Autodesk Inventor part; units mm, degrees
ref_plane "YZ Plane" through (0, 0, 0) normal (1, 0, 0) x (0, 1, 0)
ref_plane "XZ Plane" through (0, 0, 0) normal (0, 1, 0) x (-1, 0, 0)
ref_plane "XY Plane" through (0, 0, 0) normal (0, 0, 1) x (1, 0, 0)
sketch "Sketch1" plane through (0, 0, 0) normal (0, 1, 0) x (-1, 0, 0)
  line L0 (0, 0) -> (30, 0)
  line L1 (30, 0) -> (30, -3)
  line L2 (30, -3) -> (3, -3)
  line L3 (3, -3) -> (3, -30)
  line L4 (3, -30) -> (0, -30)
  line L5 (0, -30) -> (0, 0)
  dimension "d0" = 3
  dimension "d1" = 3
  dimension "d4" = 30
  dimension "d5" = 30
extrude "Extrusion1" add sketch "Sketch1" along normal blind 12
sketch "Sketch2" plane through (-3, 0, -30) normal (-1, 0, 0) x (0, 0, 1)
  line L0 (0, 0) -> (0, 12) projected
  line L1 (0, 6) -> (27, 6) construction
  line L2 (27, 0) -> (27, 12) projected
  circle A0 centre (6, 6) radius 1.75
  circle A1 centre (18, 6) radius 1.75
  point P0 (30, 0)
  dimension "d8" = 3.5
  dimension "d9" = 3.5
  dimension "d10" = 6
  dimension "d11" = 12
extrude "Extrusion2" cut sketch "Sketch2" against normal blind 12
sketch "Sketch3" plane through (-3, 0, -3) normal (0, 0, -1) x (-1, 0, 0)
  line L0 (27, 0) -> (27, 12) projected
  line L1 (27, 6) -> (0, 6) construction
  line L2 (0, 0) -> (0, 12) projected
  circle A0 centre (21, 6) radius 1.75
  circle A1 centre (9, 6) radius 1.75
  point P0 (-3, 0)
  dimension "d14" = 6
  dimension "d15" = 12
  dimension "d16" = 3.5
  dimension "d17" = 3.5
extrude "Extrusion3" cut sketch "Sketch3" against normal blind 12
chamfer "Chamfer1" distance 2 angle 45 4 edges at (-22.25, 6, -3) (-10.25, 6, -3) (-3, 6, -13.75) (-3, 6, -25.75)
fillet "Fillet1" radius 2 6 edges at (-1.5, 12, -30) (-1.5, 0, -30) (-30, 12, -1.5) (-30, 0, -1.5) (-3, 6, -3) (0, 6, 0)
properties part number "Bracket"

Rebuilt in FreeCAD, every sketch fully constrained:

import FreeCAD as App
import Part
import Sketcher
Q = App.Units.Quantity


def edges_at(feature, points):
    """Names of the edges that pass closest to the given points."""
    edges = feature.Shape.Edges
    near = lambda p: min(range(len(edges)), key=lambda i: edges[i].distToShape(Part.Vertex(*p))[0])
    return sorted({f"Edge{near(p) + 1}" for p in points})

doc = App.newDocument("Part")
body = doc.addObject("PartDesign::Body", "Body")

sketch1 = body.newObject("Sketcher::SketchObject", "Sketch")
sketch1.AttachmentSupport = (doc.getObject("XZ_Plane"), [""])
sketch1.MapMode = "FlatFace"
sketch1.addGeometry([
    Part.LineSegment(App.Vector(-30, 0, 0), App.Vector(0, 0, 0)),
    Part.LineSegment(App.Vector(0, 0, 0), App.Vector(0, -30, 0)),
    Part.LineSegment(App.Vector(0, -30, 0), App.Vector(-3, -30, 0)),
    Part.LineSegment(App.Vector(-3, -30, 0), App.Vector(-3, -3, 0)),
    Part.LineSegment(App.Vector(-3, -3, 0), App.Vector(-30, -3, 0)),
    Part.LineSegment(App.Vector(-30, -3, 0), App.Vector(-30, 0, 0)),
], False)
sketch1.addConstraint([
    Sketcher.Constraint("Coincident", 0, 2, 1, 1),
    Sketcher.Constraint("Coincident", 1, 2, 2, 1),
    Sketcher.Constraint("Coincident", 2, 2, 3, 1),
    Sketcher.Constraint("Coincident", 3, 2, 4, 1),
    Sketcher.Constraint("Coincident", 4, 2, 5, 1),
    Sketcher.Constraint("Coincident", 5, 2, 0, 1),
    Sketcher.Constraint("Horizontal", 0),
    Sketcher.Constraint("Vertical", 1),
    Sketcher.Constraint("Horizontal", 2),
    Sketcher.Constraint("Vertical", 3),
    Sketcher.Constraint("Horizontal", 4),
    Sketcher.Constraint("Vertical", 5),
    Sketcher.Constraint("Coincident", 0, 2, -1, 1),
    Sketcher.Constraint("Equal", 0, 1),
    Sketcher.Constraint("Equal", 4, 3),
    Sketcher.Constraint("DistanceX", 0, 1, 0, 2, Q("30 mm")),
    Sketcher.Constraint("DistanceX", 2, 2, 2, 1, Q("3 mm")),
])
pad1 = body.newObject("PartDesign::Pad", "Pad")
pad1.Profile = sketch1
pad1.Length = 12
pad1.Reversed = True

sketch2 = body.newObject("Sketcher::SketchObject", "Sketch001")
sketch2.AttachmentSupport = (doc.getObject("YZ_Plane"), [""])
sketch2.MapMode = "FlatFace"
sketch2.AttachmentOffset = App.Placement(App.Vector(0, 0, -3), App.Rotation())
sketch2.addGeometry([
    Part.Circle(App.Vector(6, -24, 0), App.Vector(0, 0, 1), 1.8),
    Part.Circle(App.Vector(6, -12, 0), App.Vector(0, 0, 1), 1.8),
], False)
sketch2.addConstraint([
    Sketcher.Constraint("Equal", 0, 1),
    Sketcher.Constraint("Vertical", 0, 3, 1, 3),
    Sketcher.Constraint("Diameter", 0, Q("3.5 mm")),
    Sketcher.Constraint("DistanceX", -1, 1, 0, 3, Q("6 mm")),
    Sketcher.Constraint("DistanceY", 1, 3, -1, 1, Q("12 mm")),
    Sketcher.Constraint("DistanceY", 0, 3, 1, 3, Q("12 mm")),
])
pocket1 = body.newObject("PartDesign::Pocket", "Pocket")
pocket1.Profile = sketch2
pocket1.Length = 12
pocket1.Reversed = True

sketch3 = body.newObject("Sketcher::SketchObject", "Sketch002")
sketch3.AttachmentSupport = (doc.getObject("XY_Plane"), [""])
sketch3.MapMode = "FlatFace"
sketch3.AttachmentOffset = App.Placement(App.Vector(0, 0, -3), App.Rotation())
sketch3.addGeometry([
    Part.Circle(App.Vector(-24, 6, 0), App.Vector(0, 0, 1), 1.8),
    Part.Circle(App.Vector(-12, 6, 0), App.Vector(0, 0, 1), 1.8),
], False)
sketch3.addConstraint([
    Sketcher.Constraint("Equal", 0, 1),
    Sketcher.Constraint("Horizontal", 0, 3, 1, 3),
    Sketcher.Constraint("Diameter", 0, Q("3.5 mm")),
    Sketcher.Constraint("DistanceY", -1, 1, 0, 3, Q("6 mm")),
    Sketcher.Constraint("DistanceX", 1, 3, -1, 1, Q("12 mm")),
    Sketcher.Constraint("DistanceX", 0, 3, 1, 3, Q("12 mm")),
])
pocket2 = body.newObject("PartDesign::Pocket", "Pocket001")
pocket2.Profile = sketch3
pocket2.Length = 12
pocket2.Reversed = True
doc.recompute()

chamfer = body.newObject("PartDesign::Chamfer", "Chamfer")
chamfer.Base = (pocket2, edges_at(pocket2, [
    (-22.25, 6, -3),
    (-10.25, 6, -3),
    (-3, 6, -13.75),
    (-3, 6, -25.75),
]))
chamfer.Size = 2
doc.recompute()

fillet = body.newObject("PartDesign::Fillet", "Fillet")
fillet.Base = (chamfer, edges_at(chamfer, [
    (-1.5, 12, -30),
    (-1.5, 0, -30),
    (-30, 12, -1.5),
    (-30, 0, -1.5),
    (-3, 6, -3),
    (0, 6, 0),
]))
fillet.Radius = 2

doc.recompute()
